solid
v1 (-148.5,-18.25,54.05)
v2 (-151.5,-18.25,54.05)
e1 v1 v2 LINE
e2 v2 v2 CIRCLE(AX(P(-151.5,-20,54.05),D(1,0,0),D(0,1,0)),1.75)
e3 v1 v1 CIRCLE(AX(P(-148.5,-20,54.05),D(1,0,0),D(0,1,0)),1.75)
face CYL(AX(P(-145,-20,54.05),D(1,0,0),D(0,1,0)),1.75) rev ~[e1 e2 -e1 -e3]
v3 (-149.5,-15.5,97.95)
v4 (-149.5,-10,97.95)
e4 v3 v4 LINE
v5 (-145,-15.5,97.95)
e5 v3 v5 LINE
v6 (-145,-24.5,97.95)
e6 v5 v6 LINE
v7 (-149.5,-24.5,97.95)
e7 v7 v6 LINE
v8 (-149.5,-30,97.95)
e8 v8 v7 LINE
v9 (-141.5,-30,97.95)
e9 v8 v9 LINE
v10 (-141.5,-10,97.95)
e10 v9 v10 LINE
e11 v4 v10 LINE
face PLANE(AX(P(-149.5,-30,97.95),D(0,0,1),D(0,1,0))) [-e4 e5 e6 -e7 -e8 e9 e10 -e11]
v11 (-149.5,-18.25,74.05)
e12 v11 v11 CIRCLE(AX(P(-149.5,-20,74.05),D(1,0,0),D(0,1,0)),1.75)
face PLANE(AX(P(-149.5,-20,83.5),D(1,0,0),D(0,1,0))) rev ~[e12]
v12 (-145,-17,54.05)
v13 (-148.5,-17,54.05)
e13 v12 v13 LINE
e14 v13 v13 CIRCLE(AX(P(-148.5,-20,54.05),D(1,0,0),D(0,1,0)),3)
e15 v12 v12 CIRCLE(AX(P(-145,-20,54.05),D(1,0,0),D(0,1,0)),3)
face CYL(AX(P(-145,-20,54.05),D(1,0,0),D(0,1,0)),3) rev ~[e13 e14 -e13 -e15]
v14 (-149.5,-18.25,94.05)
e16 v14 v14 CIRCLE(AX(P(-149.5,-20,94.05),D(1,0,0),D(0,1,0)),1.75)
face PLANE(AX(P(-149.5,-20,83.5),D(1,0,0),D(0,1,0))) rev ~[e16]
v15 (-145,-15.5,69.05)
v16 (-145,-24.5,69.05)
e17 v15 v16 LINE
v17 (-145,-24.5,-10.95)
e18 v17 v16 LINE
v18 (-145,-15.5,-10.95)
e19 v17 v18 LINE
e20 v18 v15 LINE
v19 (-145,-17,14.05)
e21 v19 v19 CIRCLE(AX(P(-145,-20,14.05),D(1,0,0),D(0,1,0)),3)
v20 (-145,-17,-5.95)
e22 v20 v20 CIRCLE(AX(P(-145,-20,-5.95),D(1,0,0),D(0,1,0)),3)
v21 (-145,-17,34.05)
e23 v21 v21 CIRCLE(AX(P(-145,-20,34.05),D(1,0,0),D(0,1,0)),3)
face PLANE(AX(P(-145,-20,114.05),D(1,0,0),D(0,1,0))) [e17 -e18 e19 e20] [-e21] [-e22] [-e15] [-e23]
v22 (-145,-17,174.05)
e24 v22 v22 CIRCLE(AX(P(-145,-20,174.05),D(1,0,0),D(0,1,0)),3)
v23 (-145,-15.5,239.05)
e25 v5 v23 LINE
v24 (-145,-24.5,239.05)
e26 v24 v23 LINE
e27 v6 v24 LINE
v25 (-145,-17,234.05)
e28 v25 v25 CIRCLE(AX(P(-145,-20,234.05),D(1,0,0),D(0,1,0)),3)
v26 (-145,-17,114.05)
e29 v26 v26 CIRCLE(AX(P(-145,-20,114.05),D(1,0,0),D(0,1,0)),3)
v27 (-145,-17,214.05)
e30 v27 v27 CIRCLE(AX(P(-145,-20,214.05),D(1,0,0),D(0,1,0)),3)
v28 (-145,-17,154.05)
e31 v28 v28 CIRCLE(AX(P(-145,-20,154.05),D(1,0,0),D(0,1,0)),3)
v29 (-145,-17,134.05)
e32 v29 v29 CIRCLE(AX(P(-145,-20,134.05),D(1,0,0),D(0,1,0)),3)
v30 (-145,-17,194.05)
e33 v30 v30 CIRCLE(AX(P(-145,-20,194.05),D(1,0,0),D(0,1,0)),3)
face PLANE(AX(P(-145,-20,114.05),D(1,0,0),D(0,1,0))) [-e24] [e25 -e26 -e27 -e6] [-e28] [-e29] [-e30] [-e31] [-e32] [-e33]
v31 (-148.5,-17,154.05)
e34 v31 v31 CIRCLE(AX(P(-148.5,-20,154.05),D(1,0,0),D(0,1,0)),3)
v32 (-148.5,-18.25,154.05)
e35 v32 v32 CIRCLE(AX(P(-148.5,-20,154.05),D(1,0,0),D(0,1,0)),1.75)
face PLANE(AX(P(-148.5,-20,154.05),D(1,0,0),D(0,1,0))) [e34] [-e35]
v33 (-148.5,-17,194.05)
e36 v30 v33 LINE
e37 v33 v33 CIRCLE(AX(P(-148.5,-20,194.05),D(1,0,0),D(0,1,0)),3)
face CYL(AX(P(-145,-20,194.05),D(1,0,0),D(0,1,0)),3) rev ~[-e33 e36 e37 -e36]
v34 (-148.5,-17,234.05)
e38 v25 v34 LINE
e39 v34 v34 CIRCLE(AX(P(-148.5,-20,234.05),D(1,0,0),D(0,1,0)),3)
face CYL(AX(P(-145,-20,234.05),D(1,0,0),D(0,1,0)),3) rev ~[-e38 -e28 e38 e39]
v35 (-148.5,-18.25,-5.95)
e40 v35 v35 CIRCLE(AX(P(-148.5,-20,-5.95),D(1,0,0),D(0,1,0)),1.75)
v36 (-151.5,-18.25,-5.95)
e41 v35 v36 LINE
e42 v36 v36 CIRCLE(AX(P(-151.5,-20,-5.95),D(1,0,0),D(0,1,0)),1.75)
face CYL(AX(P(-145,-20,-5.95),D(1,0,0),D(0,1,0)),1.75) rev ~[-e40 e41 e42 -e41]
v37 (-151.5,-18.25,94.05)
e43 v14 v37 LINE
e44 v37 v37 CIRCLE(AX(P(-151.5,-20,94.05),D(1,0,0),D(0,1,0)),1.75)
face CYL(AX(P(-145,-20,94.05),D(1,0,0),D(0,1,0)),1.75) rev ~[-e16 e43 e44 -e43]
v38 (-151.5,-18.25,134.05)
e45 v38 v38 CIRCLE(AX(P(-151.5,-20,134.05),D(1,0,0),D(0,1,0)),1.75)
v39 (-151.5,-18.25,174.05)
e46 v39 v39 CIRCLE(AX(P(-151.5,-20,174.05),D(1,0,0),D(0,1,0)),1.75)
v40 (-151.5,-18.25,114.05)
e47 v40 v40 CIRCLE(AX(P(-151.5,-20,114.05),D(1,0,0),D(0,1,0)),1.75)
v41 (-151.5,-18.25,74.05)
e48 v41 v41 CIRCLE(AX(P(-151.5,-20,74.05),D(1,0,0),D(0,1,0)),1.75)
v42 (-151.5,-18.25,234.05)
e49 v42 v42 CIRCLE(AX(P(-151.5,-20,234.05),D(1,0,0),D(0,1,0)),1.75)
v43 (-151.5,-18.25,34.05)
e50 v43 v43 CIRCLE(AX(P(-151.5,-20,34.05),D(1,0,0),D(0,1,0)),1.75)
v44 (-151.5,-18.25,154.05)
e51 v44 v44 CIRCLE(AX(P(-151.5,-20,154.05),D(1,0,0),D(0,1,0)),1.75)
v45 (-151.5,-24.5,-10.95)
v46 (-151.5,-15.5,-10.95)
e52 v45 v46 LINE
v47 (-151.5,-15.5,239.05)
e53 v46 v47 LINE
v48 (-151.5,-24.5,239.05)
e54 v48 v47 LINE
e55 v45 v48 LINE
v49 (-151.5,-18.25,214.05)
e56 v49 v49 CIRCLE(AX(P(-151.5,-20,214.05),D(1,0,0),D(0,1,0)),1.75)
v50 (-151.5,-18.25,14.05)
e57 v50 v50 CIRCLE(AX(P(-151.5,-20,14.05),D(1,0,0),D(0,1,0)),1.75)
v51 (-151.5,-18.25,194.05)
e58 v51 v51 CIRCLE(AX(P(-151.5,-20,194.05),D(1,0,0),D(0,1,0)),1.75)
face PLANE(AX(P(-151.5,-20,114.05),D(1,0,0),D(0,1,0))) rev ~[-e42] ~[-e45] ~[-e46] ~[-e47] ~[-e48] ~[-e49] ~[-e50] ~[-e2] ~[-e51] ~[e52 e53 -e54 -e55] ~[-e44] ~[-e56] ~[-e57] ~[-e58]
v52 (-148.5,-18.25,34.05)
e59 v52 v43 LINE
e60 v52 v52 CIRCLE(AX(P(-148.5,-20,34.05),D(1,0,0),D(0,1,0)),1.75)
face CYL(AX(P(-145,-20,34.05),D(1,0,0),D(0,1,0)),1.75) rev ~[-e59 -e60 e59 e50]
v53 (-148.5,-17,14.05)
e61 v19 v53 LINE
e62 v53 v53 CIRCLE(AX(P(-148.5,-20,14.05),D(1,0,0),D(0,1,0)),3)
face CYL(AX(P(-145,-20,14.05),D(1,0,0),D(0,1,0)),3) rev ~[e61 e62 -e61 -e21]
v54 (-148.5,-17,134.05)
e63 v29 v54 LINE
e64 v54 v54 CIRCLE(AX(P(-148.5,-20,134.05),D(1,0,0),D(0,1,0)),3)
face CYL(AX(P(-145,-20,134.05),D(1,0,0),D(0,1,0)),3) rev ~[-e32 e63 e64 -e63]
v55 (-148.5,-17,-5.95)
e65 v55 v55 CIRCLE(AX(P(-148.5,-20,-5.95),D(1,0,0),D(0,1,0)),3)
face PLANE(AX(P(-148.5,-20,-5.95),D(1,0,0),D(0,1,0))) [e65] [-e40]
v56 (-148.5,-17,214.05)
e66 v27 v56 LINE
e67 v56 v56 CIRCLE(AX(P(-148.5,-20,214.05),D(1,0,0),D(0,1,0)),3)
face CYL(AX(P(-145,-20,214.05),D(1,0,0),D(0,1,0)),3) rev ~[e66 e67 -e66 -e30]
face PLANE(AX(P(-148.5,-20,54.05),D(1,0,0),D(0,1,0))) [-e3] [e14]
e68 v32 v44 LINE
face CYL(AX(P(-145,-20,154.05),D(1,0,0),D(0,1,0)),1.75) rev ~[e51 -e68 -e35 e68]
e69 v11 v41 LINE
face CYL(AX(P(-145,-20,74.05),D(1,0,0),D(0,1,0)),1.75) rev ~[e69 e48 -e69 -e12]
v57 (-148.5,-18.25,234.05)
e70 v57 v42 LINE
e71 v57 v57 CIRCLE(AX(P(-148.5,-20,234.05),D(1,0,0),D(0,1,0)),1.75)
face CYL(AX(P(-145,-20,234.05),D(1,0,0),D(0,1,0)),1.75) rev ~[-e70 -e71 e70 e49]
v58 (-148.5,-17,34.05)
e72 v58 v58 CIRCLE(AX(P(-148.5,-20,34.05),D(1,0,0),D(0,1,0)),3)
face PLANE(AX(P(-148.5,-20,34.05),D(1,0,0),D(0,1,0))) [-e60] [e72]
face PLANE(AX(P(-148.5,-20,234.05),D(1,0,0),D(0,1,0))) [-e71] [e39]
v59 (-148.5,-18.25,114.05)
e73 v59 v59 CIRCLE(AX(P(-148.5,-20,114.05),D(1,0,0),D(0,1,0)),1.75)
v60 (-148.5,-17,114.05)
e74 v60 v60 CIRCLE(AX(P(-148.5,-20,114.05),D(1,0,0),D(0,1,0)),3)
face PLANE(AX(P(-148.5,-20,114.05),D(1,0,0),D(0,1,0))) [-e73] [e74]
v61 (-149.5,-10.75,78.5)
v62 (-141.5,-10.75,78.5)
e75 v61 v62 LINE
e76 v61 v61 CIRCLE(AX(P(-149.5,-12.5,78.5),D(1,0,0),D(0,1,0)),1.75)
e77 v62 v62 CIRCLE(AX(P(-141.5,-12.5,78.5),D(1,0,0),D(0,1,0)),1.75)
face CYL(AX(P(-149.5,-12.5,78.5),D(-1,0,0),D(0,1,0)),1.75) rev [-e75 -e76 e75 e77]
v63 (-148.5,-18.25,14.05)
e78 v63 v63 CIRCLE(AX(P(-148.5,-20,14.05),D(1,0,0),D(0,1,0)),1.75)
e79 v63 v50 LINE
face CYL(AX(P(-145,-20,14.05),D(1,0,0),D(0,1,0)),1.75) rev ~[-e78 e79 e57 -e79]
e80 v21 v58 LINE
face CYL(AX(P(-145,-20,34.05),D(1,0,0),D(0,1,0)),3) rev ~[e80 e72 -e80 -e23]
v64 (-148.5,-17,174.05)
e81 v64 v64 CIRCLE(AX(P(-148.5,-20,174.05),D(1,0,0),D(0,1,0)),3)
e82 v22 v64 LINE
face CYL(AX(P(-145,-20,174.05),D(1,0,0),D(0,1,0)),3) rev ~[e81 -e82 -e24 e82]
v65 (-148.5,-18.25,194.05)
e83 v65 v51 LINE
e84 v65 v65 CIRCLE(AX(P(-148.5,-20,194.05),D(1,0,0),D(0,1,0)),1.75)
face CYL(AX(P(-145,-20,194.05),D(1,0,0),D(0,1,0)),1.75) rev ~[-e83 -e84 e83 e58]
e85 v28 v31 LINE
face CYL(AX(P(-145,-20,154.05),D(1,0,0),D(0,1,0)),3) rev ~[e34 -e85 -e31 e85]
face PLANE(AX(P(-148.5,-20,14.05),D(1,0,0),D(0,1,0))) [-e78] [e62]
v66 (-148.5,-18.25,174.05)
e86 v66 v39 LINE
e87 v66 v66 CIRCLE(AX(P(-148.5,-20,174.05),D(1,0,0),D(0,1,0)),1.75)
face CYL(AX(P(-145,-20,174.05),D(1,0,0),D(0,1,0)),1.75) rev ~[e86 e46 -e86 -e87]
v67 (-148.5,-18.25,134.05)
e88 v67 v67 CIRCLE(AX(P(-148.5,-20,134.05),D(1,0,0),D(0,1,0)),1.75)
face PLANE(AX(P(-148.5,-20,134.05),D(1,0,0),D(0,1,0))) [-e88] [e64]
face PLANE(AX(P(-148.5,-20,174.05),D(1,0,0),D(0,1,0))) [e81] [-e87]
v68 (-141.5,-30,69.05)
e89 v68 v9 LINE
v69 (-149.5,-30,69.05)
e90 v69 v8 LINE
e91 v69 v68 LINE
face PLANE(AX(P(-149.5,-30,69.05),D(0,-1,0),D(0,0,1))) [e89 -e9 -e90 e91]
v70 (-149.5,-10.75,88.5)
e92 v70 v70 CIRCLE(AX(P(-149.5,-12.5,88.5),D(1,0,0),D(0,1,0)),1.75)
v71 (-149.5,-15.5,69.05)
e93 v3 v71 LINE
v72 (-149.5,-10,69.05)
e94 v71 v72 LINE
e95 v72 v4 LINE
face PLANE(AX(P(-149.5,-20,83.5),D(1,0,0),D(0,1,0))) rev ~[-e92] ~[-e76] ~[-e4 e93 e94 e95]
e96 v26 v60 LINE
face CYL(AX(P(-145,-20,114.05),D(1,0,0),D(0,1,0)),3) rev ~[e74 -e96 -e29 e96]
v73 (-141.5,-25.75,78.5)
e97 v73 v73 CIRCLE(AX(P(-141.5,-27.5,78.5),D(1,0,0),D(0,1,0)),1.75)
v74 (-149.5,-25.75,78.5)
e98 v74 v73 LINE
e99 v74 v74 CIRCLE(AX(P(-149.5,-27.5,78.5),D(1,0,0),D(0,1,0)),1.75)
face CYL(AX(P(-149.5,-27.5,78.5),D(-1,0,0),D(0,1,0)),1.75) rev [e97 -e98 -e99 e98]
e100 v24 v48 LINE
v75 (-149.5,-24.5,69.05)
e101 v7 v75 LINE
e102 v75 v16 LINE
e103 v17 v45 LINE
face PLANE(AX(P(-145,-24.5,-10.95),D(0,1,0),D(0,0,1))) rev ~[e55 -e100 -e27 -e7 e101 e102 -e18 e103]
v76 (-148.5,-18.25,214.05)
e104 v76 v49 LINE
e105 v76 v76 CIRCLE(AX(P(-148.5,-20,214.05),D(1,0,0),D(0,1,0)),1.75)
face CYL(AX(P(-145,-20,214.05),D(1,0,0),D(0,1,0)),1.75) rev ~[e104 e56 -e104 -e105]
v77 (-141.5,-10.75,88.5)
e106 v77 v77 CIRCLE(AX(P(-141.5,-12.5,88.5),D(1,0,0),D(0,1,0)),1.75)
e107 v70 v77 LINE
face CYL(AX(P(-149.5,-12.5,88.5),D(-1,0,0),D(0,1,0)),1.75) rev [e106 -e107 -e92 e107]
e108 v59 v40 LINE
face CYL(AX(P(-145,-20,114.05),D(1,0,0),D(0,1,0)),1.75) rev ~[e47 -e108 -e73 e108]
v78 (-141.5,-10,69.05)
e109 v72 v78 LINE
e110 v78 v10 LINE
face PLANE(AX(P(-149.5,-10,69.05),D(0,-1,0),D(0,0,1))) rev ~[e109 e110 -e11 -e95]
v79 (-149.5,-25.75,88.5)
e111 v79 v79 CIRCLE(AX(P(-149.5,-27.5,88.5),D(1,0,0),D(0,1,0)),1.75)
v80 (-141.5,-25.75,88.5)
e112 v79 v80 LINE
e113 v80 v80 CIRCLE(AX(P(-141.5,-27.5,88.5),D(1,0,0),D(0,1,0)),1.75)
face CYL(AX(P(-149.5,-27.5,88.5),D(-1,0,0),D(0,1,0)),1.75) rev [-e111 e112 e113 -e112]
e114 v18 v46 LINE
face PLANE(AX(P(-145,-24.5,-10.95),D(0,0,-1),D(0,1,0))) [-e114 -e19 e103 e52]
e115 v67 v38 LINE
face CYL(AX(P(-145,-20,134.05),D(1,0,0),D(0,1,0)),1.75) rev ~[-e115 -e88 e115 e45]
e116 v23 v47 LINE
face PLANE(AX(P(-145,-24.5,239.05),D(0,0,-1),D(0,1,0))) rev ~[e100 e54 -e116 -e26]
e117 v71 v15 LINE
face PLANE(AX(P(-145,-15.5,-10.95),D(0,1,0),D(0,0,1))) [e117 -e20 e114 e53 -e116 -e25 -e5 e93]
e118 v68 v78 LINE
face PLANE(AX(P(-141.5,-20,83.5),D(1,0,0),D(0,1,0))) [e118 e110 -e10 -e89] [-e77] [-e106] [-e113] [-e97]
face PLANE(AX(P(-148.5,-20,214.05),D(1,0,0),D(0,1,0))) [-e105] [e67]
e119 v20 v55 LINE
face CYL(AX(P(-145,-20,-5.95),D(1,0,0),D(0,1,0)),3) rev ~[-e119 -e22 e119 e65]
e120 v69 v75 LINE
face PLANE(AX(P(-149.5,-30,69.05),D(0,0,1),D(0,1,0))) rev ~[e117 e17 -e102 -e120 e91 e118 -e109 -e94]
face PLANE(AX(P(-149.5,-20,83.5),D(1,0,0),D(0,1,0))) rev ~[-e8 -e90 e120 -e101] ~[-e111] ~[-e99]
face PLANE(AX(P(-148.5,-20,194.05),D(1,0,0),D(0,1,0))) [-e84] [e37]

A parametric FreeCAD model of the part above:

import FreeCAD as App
import Part
import Sketcher
Q = App.Units.Quantity


def add_polygon(sketch, points):
    """Adds a closed chain of lines whose ends are joined by coincident constraints."""
    first, n = sketch.GeometryCount, len(points)
    for a, b in zip(points, points[1:] + points[:1]):
        sketch.addGeometry(Part.LineSegment(App.Vector(*a, 0), App.Vector(*b, 0)), False)
    for i in range(n):
        sketch.addConstraint(Sketcher.Constraint("Coincident", first + i, 2, first + (i + 1) % n, 1))

doc = App.newDocument("Part")
body = doc.addObject("PartDesign::Body", "Body")

# Sketch on XY plane
sketch1 = body.newObject("Sketcher::SketchObject", "Sketch")
sketch1.AttachmentSupport = (doc.getObject("XY_Plane"), [""])
sketch1.MapMode = "FlatFace"
add_polygon(sketch1, [(-4, 250), (-4, 0), (4, 0), (4, 250)])  # lines 0-3
sketch1.addConstraint([
    Sketcher.Constraint("Vertical", 0),
    Sketcher.Constraint("Horizontal", 1),
    Sketcher.Constraint("Vertical", 2),
    Sketcher.Constraint("Horizontal", 3),
    Sketcher.Constraint("Symmetric", 0, 2, 1, 2, -1, 1),
    Sketcher.Constraint("DistanceX", 1, 1, 1, 2, Q("9 mm")),
    Sketcher.Constraint("DistanceY", 0, 2, 0, 1, Q("250 mm")),
])
pad1 = body.newObject("PartDesign::Pad", "Pad")
pad1.Profile = sketch1
pad1.Length = 6.5
pad1.Reversed = True

# Sketch on XY plane
sketch2 = body.newObject("Sketcher::SketchObject", "Sketch001")
sketch2.AttachmentSupport = (doc.getObject("XY_Plane"), [""])
sketch2.MapMode = "FlatFace"
sketch2.addGeometry(Part.Circle(App.Vector(0, 5, 0), App.Vector(0, 0, 1), 1.8), False)
sketch2.addConstraint([
    Sketcher.Constraint("PointOnObject", 0, 3, -2),
    Sketcher.Constraint("Diameter", 0, Q("3.5 mm")),
    Sketcher.Constraint("DistanceY", -1, 1, 0, 3, Q("5 mm")),
])
pocket1 = body.newObject("PartDesign::Pocket", "Pocket")
pocket1.Profile = sketch2
pocket1.Length = 6.5
doc.recompute()

linearpattern = body.newObject("PartDesign::LinearPattern", "LinearPattern")
linearpattern.Originals = [pocket1]
linearpattern.Direction = (doc.getObject("Y_Axis"), [""])
linearpattern.Mode = "offset"
linearpattern.Offset = 20
linearpattern.Occurrences = 13
body.Tip = linearpattern

# Sketch on XY plane
sketch3 = body.newObject("Sketcher::SketchObject", "Sketch002")
sketch3.AttachmentSupport = (doc.getObject("XY_Plane"), [""])
sketch3.MapMode = "FlatFace"
sketch3.addGeometry(Part.Circle(App.Vector(0, 5, 0), App.Vector(0, 0, 1), 3), False)
sketch3.addConstraint([
    Sketcher.Constraint("PointOnObject", 0, 3, -2),
    Sketcher.Constraint("Diameter", 0, Q("6 mm")),
    Sketcher.Constraint("DistanceY", -1, 1, 0, 3, Q("5 mm")),
])
pocket2 = body.newObject("PartDesign::Pocket", "Pocket001")
pocket2.Profile = sketch3
pocket2.Length = 3.5
doc.recompute()

linearpattern2 = body.newObject("PartDesign::LinearPattern", "LinearPattern001")
linearpattern2.Originals = [pocket2]
linearpattern2.Direction = (doc.getObject("Y_Axis"), [""])
linearpattern2.Mode = "offset"
linearpattern2.Offset = 20
linearpattern2.Occurrences = 13
body.Tip = linearpattern2

# Sketch on XY plane
sketch4 = body.newObject("Sketcher::SketchObject", "Sketch003")
sketch4.AttachmentSupport = (doc.getObject("XY_Plane"), [""])
sketch4.MapMode = "FlatFace"
sketch4.AttachmentOffset = App.Placement(App.Vector(0, 0, -4.5), App.Rotation())
add_polygon(sketch4, [(-10, 108.9), (-10, 80), (10, 80), (10, 108.9)])  # lines 0-3
sketch4.addGeometry(Part.Circle(App.Vector(-7.5, 89.5, 0), App.Vector(0, 0, 1), 1.8), False)  # 4
sketch4.addGeometry(Part.Circle(App.Vector(7.5, 89.5, 0), App.Vector(0, 0, 1), 1.8), False)  # 5
sketch4.addGeometry(Part.Circle(App.Vector(-7.5, 99.5, 0), App.Vector(0, 0, 1), 1.8), False)  # 6
sketch4.addGeometry(Part.Circle(App.Vector(7.5, 99.5, 0), App.Vector(0, 0, 1), 1.8), False)  # 7
sketch4.addConstraint([
    Sketcher.Constraint("Vertical", 0),
    Sketcher.Constraint("Horizontal", 1),
    Sketcher.Constraint("Vertical", 2),
    Sketcher.Constraint("Horizontal", 3),
    Sketcher.Constraint("Equal", 4, 5),
    Sketcher.Constraint("Equal", 5, 6),
    Sketcher.Constraint("Equal", 6, 7),
    Sketcher.Constraint("Symmetric", 4, 3, 5, 3, -2),
    Sketcher.Constraint("Symmetric", 6, 3, 7, 3, -2),
    Sketcher.Constraint("Vertical", 4, 3, 6, 3),
    Sketcher.Constraint("Diameter", 4, Q("3.5 mm")),
    Sketcher.Constraint("DistanceX", 1, 1, 1, 2, Q("20 mm")),
    Sketcher.Constraint("DistanceY", 0, 2, 0, 1, Q("28.9 mm")),
    Sketcher.Constraint("DistanceX", 0, 2, -1, 1, Q("10 mm")),
    Sketcher.Constraint("DistanceY", -1, 1, 0, 2, Q("80 mm")),
    Sketcher.Constraint("DistanceX", 4, 3, 5, 3, Q("15 mm")),
    Sketcher.Constraint("DistanceY", 4, 3, 6, 3, Q("10 mm")),
    Sketcher.Constraint("DistanceY", -1, 1, 4, 3, Q("89.45 mm")),
])
pad2 = body.newObject("PartDesign::Pad", "Pad001")
pad2.Profile = sketch4
pad2.Length = 8
body2 = doc.addObject("PartDesign::Body", "Body001")
doc.recompute()

body.Placement = App.Placement(App.Vector(0, 0, 0), App.Rotation(App.Vector(1, 0, 0), 90))
boolean = body2.newObject("PartDesign::Boolean", "Boolean")
boolean.Type = "Fuse"
boolean.addObjects([body])
body3 = doc.addObject("PartDesign::Body", "Body002")
doc.recompute()

body2.Placement = App.Placement(App.Vector(-145, -20, -10.95), App.Rotation(App.Vector(0, 0, 1), 90))
boolean2 = body3.newObject("PartDesign::Boolean", "Boolean001")
boolean2.Type = "Fuse"
boolean2.addObjects([body2])

doc.recompute()
